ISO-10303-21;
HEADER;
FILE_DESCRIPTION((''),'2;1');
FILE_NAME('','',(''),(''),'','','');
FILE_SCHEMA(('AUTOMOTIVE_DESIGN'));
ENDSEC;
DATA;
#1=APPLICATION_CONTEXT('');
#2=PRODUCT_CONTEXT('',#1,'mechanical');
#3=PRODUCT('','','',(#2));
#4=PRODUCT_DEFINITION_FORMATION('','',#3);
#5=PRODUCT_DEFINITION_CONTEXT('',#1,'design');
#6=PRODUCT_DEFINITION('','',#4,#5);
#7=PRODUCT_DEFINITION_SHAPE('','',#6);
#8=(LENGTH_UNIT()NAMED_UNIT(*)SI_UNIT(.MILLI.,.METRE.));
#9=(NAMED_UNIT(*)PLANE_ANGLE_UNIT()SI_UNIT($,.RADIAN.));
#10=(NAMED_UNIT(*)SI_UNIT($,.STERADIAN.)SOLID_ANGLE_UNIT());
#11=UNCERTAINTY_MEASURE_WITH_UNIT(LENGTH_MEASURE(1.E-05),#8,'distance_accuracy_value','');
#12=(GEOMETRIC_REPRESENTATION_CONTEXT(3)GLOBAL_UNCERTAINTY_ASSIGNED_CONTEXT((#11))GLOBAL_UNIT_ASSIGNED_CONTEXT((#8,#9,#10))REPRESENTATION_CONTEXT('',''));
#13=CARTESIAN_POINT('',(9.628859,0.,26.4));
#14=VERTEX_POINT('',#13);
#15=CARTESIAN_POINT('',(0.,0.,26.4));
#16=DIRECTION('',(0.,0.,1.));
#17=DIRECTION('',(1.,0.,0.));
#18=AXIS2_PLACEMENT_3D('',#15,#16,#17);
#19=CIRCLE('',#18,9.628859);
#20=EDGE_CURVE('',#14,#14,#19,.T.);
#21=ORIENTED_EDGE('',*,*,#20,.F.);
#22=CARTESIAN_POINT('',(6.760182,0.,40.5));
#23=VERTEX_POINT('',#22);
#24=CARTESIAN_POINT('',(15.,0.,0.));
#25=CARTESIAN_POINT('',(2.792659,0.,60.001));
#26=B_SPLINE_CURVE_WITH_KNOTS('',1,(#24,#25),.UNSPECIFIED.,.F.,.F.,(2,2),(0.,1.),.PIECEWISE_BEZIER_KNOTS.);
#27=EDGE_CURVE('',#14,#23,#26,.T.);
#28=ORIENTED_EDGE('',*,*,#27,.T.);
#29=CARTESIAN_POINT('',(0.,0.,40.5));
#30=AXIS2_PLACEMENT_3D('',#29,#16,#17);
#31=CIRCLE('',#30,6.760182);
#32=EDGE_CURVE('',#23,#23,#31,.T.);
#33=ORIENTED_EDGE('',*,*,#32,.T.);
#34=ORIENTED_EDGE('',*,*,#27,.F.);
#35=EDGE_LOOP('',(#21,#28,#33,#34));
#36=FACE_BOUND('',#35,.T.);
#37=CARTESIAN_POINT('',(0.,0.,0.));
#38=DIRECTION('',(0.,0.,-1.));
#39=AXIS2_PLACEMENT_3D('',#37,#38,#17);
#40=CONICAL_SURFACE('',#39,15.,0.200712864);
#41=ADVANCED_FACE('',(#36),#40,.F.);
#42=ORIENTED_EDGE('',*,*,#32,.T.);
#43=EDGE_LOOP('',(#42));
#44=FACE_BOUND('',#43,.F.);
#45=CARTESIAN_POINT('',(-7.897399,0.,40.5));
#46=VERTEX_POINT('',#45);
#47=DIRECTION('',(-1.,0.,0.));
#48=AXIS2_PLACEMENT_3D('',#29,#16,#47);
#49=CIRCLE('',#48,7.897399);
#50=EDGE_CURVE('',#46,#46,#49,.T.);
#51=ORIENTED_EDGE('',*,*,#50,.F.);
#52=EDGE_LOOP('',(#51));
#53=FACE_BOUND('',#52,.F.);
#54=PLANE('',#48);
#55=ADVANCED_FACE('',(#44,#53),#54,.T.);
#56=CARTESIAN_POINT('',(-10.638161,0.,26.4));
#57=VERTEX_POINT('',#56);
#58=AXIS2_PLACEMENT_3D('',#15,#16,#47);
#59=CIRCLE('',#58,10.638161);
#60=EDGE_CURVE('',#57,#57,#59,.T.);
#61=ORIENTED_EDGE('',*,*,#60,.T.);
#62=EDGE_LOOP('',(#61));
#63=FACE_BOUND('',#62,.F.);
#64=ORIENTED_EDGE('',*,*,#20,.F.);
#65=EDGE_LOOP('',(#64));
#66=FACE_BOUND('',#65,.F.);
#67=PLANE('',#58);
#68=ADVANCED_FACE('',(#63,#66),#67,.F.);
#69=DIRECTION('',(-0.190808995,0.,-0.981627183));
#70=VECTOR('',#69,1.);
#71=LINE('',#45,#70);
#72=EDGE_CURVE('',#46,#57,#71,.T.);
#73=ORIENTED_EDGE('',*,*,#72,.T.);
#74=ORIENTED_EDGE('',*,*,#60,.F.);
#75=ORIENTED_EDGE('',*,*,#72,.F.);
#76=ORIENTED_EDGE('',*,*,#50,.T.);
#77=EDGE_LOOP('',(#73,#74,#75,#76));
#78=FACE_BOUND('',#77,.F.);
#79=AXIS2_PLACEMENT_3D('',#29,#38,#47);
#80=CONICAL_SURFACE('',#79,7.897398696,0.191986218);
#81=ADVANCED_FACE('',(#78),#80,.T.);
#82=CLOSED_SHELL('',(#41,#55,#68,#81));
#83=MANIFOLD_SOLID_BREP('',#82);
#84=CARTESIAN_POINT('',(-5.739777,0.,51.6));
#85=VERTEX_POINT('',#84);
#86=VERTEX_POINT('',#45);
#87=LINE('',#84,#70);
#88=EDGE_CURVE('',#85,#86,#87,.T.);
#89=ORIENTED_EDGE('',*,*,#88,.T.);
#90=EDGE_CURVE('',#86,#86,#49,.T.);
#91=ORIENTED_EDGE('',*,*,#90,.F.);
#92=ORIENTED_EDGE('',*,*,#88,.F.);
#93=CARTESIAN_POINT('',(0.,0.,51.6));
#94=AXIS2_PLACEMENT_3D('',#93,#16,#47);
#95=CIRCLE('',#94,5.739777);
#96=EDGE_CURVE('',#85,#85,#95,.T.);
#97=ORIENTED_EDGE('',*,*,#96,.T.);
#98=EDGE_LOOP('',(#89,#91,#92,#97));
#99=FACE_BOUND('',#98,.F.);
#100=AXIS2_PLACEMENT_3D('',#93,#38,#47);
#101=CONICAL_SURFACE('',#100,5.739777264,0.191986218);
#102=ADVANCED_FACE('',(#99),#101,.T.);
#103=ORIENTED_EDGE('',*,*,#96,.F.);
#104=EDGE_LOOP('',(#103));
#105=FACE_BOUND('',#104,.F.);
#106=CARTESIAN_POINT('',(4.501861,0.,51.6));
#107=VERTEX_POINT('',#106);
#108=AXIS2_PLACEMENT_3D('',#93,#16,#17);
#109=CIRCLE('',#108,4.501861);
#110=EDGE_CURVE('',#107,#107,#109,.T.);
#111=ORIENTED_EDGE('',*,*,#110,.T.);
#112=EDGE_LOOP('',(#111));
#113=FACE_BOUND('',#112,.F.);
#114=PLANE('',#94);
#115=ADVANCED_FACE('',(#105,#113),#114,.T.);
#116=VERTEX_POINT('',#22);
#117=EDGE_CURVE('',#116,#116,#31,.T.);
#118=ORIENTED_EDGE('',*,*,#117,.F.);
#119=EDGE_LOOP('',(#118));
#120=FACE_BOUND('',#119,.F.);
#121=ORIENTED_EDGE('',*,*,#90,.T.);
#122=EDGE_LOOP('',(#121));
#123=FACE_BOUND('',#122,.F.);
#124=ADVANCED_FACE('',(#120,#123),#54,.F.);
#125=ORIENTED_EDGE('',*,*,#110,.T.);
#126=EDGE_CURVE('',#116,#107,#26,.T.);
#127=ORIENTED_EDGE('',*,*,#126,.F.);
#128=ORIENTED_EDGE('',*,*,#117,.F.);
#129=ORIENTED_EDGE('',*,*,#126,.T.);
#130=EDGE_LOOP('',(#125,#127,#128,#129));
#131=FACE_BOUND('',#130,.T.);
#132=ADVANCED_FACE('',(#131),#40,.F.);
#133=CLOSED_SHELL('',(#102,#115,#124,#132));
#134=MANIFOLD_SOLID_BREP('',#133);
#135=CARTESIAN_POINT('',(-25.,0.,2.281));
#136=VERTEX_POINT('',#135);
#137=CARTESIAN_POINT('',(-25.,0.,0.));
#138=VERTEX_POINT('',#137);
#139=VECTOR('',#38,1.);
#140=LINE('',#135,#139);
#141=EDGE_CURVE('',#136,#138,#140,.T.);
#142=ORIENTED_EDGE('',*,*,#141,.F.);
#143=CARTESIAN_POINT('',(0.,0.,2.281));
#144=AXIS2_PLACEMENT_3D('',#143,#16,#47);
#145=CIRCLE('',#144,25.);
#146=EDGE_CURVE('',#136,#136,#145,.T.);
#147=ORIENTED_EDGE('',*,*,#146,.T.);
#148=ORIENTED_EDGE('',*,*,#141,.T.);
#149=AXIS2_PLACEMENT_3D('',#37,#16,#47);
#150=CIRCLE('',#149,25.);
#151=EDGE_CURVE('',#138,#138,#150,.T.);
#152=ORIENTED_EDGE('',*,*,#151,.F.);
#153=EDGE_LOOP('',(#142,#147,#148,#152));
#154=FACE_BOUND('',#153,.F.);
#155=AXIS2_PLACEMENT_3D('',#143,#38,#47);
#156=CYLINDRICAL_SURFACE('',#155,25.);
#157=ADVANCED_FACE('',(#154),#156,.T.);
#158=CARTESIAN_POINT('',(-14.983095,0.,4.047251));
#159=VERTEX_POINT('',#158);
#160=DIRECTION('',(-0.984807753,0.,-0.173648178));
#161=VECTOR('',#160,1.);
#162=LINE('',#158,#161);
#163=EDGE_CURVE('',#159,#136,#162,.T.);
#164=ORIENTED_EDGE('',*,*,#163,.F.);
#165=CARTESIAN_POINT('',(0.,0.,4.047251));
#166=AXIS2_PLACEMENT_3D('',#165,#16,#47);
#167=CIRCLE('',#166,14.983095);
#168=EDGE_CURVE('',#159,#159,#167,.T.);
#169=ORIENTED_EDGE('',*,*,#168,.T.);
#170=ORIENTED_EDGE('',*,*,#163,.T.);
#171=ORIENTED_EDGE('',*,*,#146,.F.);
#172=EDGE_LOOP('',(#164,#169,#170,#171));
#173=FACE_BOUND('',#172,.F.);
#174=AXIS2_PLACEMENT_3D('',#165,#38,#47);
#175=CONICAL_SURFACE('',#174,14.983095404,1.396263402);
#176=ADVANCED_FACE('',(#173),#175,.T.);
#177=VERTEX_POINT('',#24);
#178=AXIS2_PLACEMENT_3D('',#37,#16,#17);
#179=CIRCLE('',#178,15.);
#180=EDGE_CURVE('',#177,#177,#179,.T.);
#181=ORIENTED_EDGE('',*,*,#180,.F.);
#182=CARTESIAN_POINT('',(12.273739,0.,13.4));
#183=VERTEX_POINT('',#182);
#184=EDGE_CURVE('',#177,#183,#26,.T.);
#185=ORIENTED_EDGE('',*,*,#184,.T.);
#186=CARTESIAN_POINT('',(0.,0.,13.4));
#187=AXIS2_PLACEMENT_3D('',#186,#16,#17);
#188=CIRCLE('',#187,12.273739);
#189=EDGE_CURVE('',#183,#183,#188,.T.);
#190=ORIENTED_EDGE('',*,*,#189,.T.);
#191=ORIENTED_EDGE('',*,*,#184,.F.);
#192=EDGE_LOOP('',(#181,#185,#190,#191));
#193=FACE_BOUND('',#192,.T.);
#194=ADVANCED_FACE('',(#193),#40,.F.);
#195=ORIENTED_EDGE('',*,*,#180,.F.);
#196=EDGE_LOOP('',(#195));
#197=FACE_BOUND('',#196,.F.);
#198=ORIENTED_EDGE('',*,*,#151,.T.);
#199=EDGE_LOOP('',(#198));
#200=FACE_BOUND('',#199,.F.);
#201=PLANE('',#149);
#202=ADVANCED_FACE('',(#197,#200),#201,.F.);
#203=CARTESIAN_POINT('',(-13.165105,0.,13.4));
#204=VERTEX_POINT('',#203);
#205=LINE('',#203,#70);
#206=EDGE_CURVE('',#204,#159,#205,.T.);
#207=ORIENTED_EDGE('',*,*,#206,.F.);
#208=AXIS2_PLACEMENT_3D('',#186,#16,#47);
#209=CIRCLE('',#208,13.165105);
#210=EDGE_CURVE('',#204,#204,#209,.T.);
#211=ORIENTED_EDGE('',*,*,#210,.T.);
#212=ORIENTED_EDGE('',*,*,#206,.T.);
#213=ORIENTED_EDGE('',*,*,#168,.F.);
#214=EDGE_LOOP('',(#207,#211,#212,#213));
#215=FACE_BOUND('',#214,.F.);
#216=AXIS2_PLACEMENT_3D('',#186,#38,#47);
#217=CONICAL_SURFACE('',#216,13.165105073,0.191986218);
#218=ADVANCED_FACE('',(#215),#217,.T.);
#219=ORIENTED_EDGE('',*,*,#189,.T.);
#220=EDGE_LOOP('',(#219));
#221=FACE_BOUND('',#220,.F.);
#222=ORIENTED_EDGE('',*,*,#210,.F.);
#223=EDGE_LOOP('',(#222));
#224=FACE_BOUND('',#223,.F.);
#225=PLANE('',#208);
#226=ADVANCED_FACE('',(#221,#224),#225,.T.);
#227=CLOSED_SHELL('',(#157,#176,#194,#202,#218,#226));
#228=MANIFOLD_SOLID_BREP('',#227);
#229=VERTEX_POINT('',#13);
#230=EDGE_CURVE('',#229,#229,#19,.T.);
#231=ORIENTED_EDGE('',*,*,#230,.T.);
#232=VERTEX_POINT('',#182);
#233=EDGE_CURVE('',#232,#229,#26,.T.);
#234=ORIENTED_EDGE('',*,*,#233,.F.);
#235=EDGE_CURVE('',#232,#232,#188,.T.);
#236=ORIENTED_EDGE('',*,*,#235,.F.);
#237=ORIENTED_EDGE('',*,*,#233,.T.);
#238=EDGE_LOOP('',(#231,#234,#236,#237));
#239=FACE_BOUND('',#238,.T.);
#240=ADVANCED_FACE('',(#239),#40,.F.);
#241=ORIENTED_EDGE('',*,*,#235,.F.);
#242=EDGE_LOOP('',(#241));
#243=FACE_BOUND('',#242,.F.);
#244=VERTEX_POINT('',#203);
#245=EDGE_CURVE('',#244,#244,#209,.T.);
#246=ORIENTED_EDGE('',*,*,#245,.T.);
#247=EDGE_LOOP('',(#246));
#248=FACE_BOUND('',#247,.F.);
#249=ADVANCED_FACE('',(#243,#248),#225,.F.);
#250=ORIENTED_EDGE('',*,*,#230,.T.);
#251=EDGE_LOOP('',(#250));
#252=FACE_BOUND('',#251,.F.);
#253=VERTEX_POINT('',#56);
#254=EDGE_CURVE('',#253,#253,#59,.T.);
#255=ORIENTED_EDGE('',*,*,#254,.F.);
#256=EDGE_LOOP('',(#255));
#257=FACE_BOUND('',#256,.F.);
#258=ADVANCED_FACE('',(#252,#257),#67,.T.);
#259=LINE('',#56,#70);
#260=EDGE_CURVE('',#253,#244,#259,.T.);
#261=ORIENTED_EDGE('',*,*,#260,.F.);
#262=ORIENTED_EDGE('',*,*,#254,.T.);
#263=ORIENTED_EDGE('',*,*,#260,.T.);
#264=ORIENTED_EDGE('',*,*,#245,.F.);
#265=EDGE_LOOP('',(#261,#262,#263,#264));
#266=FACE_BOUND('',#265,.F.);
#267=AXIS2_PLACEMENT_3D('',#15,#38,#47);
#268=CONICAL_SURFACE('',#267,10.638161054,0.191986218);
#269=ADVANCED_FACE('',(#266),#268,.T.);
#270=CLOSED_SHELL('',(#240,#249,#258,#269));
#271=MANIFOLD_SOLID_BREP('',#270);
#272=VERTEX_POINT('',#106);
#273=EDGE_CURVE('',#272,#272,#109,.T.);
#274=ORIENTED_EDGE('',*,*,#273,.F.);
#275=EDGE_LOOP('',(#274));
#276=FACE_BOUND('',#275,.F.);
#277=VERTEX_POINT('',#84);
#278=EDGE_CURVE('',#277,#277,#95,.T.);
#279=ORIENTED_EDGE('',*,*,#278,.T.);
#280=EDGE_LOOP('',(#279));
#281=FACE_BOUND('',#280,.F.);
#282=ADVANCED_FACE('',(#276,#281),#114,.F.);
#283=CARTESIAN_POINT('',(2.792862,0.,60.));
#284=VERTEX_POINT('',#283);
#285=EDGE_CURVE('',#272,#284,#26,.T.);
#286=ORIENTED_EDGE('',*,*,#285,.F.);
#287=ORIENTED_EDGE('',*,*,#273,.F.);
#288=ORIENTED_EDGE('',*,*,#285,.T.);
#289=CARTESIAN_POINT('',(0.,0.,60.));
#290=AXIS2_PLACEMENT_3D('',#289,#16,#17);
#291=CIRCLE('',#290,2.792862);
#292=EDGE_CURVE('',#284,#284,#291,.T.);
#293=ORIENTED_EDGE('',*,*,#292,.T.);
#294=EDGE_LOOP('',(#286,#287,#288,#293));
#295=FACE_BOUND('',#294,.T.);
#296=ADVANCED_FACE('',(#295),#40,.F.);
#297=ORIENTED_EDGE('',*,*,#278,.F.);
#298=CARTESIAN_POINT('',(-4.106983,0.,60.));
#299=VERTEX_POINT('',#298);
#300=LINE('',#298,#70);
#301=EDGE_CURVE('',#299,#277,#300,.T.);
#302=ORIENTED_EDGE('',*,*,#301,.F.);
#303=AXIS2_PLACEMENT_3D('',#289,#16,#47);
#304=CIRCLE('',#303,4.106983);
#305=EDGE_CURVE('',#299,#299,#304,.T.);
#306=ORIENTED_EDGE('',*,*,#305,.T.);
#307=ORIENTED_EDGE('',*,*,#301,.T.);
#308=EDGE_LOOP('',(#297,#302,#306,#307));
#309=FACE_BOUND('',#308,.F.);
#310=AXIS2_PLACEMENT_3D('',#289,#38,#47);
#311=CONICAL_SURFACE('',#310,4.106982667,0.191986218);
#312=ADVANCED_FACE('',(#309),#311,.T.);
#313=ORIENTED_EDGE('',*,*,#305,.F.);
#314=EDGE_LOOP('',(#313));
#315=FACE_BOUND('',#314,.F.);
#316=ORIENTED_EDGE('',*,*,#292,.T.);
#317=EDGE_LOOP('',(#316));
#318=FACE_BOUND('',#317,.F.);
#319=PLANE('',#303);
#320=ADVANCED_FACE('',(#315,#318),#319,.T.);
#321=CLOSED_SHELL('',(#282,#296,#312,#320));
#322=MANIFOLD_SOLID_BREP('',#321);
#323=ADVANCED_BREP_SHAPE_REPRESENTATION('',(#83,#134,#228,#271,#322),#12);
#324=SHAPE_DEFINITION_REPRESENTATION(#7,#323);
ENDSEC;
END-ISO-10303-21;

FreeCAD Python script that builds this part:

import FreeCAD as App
import Part
import Sketcher
from FreeCAD import Vector
Q = App.Units.Quantity

doc = App.newDocument("Part")
body = doc.addObject("PartDesign::Body", "Body")

sketch1 = body.newObject("Sketcher::SketchObject", "Sketch")
sketch1.AttachmentSupport = (doc.getObject("XZ_Plane"), [""])
sketch1.MapMode = "FlatFace"
sketch1.addGeometry(Part.LineSegment(Vector(-7.897399, 40.5, 0), Vector(0, 40.5, 0)), False)
sketch1.addGeometry(Part.LineSegment(Vector(0, 40.5, 0), Vector(0, 51.6, 0)), False)
sketch1.addGeometry(Part.LineSegment(Vector(0, 51.6, 0), Vector(-5.739777, 51.6, 0)), False)
sketch1.addGeometry(Part.LineSegment(Vector(-5.739777, 51.6, 0), Vector(-7.897399, 40.5, 0)), False)
sketch1.addConstraint(Sketcher.Constraint("Coincident", 0, 2, 1, 1))
sketch1.addConstraint(Sketcher.Constraint("Coincident", 1, 2, 2, 1))
sketch1.addConstraint(Sketcher.Constraint("Coincident", 2, 2, 3, 1))
sketch1.addConstraint(Sketcher.Constraint("Coincident", 3, 2, 0, 1))
sketch1.addConstraint(Sketcher.Constraint("Horizontal", 0))
sketch1.addConstraint(Sketcher.Constraint("Vertical", 1))
sketch1.addConstraint(Sketcher.Constraint("Horizontal", 2))
sketch1.addConstraint(Sketcher.Constraint("PointOnObject", 0, 2, -2))
sketch1.addConstraint(Sketcher.Constraint("Angle", 3, Q("-101 deg")))
sketch1.addConstraint(Sketcher.Constraint("DistanceY", 1, 1, 1, 2, Q("11.1 mm")))
sketch1.addConstraint(Sketcher.Constraint("DistanceY", -1, 1, 0, 2, Q("40.5 mm")))
sketch1.addConstraint(Sketcher.Constraint("DistanceX", 0, 1, 0, 2, Q("7.897399 mm")))
revolution = body.newObject("PartDesign::Revolution", "Revolution")
revolution.Profile = sketch1
revolution.ReferenceAxis = (sketch1, ["V_Axis"])
revolution.Angle = 360
body2 = doc.addObject("PartDesign::Body", "Body001")

sketch2 = body2.newObject("Sketcher::SketchObject", "Sketch001")
sketch2.AttachmentSupport = (doc.getObject("XZ_Plane001"), [""])
sketch2.MapMode = "FlatFace"
sketch2.addGeometry(Part.LineSegment(Vector(-5.739777, 51.6, 0), Vector(0, 51.6, 0)), False)
sketch2.addGeometry(Part.LineSegment(Vector(0, 51.6, 0), Vector(0, 60, 0)), False)
sketch2.addGeometry(Part.LineSegment(Vector(0, 60, 0), Vector(-4.106983, 60, 0)), False)
sketch2.addGeometry(Part.LineSegment(Vector(-4.106983, 60, 0), Vector(-5.739777, 51.6, 0)), False)
sketch2.addConstraint(Sketcher.Constraint("Coincident", 0, 2, 1, 1))
sketch2.addConstraint(Sketcher.Constraint("Coincident", 1, 2, 2, 1))
sketch2.addConstraint(Sketcher.Constraint("Coincident", 2, 2, 3, 1))
sketch2.addConstraint(Sketcher.Constraint("Coincident", 3, 2, 0, 1))
sketch2.addConstraint(Sketcher.Constraint("Horizontal", 0))
sketch2.addConstraint(Sketcher.Constraint("Vertical", 1))
sketch2.addConstraint(Sketcher.Constraint("Horizontal", 2))
sketch2.addConstraint(Sketcher.Constraint("PointOnObject", 0, 2, -2))
sketch2.addConstraint(Sketcher.Constraint("Angle", 3, Q("-101 deg")))
sketch2.addConstraint(Sketcher.Constraint("DistanceY", 1, 1, 1, 2, Q("8.4 mm")))
sketch2.addConstraint(Sketcher.Constraint("DistanceY", -1, 1, 1, 2, Q("60 mm")))
sketch2.addConstraint(Sketcher.Constraint("DistanceX", 0, 1, 0, 2, Q("5.739777 mm")))
revolution2 = body2.newObject("PartDesign::Revolution", "Revolution001")
revolution2.Profile = sketch2
revolution2.ReferenceAxis = (sketch2, ["V_Axis"])
revolution2.Angle = 360
body3 = doc.addObject("PartDesign::Body", "Body002")

sketch3 = body3.newObject("Sketcher::SketchObject", "Sketch002")
sketch3.AttachmentSupport = (doc.getObject("XZ_Plane002"), [""])
sketch3.MapMode = "FlatFace"
sketch3.addGeometry(Part.LineSegment(Vector(-10.638161, 26.4, 0), Vector(0, 26.4, 0)), False)
sketch3.addGeometry(Part.LineSegment(Vector(0, 26.4, 0), Vector(0, 40.5, 0)), False)
sketch3.addGeometry(Part.LineSegment(Vector(0, 40.5, 0), Vector(-7.897399, 40.5, 0)), False)
sketch3.addGeometry(Part.LineSegment(Vector(-7.897399, 40.5, 0), Vector(-10.638161, 26.4, 0)), False)
sketch3.addConstraint(Sketcher.Constraint("Coincident", 0, 2, 1, 1))
sketch3.addConstraint(Sketcher.Constraint("Coincident", 1, 2, 2, 1))
sketch3.addConstraint(Sketcher.Constraint("Coincident", 2, 2, 3, 1))
sketch3.addConstraint(Sketcher.Constraint("Coincident", 3, 2, 0, 1))
sketch3.addConstraint(Sketcher.Constraint("Horizontal", 0))
sketch3.addConstraint(Sketcher.Constraint("Vertical", 1))
sketch3.addConstraint(Sketcher.Constraint("Horizontal", 2))
sketch3.addConstraint(Sketcher.Constraint("PointOnObject", 0, 2, -2))
sketch3.addConstraint(Sketcher.Constraint("Angle", 3, Q("-101 deg")))
sketch3.addConstraint(Sketcher.Constraint("DistanceY", 1, 1, 1, 2, Q("14.1 mm")))
sketch3.addConstraint(Sketcher.Constraint("DistanceY", -1, 1, 0, 2, Q("26.4 mm")))
sketch3.addConstraint(Sketcher.Constraint("DistanceX", 2, 2, 2, 1, Q("7.897399 mm")))
revolution3 = body3.newObject("PartDesign::Revolution", "Revolution002")
revolution3.Profile = sketch3
revolution3.ReferenceAxis = (sketch3, ["V_Axis"])
revolution3.Angle = 360
body4 = doc.addObject("PartDesign::Body", "Body003")

sketch4 = body4.newObject("Sketcher::SketchObject", "Sketch003")
sketch4.AttachmentSupport = (doc.getObject("XZ_Plane003"), [""])
sketch4.MapMode = "FlatFace"
sketch4.addGeometry(Part.LineSegment(Vector(-13.165105, 13.4, 0), Vector(0, 13.4, 0)), False)
sketch4.addGeometry(Part.LineSegment(Vector(0, 13.4, 0), Vector(0, 26.4, 0)), False)
sketch4.addGeometry(Part.LineSegment(Vector(0, 26.4, 0), Vector(-10.638161, 26.4, 0)), False)
sketch4.addGeometry(Part.LineSegment(Vector(-10.638161, 26.4, 0), Vector(-13.165105, 13.4, 0)), False)
sketch4.addConstraint(Sketcher.Constraint("Coincident", 0, 2, 1, 1))
sketch4.addConstraint(Sketcher.Constraint("Coincident", 1, 2, 2, 1))
sketch4.addConstraint(Sketcher.Constraint("Coincident", 2, 2, 3, 1))
sketch4.addConstraint(Sketcher.Constraint("Coincident", 3, 2, 0, 1))
sketch4.addConstraint(Sketcher.Constraint("Horizontal", 0))
sketch4.addConstraint(Sketcher.Constraint("Vertical", 1))
sketch4.addConstraint(Sketcher.Constraint("Horizontal", 2))
sketch4.addConstraint(Sketcher.Constraint("PointOnObject", 0, 2, -2))
sketch4.addConstraint(Sketcher.Constraint("DistanceY", 1, 1, 1, 2, Q("13 mm")))
sketch4.addConstraint(Sketcher.Constraint("Angle", 3, Q("-101 deg")))
sketch4.addConstraint(Sketcher.Constraint("DistanceY", -1, 1, 0, 2, Q("13.4 mm")))
sketch4.addConstraint(Sketcher.Constraint("DistanceX", 2, 2, 2, 1, Q("10.638161 mm")))
revolution4 = body4.newObject("PartDesign::Revolution", "Revolution003")
revolution4.Profile = sketch4
revolution4.ReferenceAxis = (sketch4, ["V_Axis"])
revolution4.Angle = 360
body5 = doc.addObject("PartDesign::Body", "Body004")

sketch5 = body5.newObject("Sketcher::SketchObject", "Sketch004")
sketch5.AttachmentSupport = (doc.getObject("XZ_Plane004"), [""])
sketch5.MapMode = "FlatFace"
sketch5.addGeometry(Part.LineSegment(Vector(-25, 0, 0), Vector(0, 0, 0)), False)
sketch5.addGeometry(Part.LineSegment(Vector(0, 0, 0), Vector(0, 13.4, 0)), False)
sketch5.addGeometry(Part.LineSegment(Vector(0, 13.4, 0), Vector(-13.165105, 13.4, 0)), False)
sketch5.addGeometry(Part.LineSegment(Vector(-13.165105, 13.4, 0), Vector(-14.983095, 4.047251, 0)), False)
sketch5.addGeometry(Part.LineSegment(Vector(-14.983095, 4.047251, 0), Vector(-25, 2.281, 0)), False)
sketch5.addGeometry(Part.LineSegment(Vector(-25, 2.281, 0), Vector(-25, 0, 0)), False)
sketch5.addConstraint(Sketcher.Constraint("Coincident", 0, 2, 1, 1))
sketch5.addConstraint(Sketcher.Constraint("Coincident", 1, 2, 2, 1))
sketch5.addConstraint(Sketcher.Constraint("Coincident", 2, 2, 3, 1))
sketch5.addConstraint(Sketcher.Constraint("Coincident", 3, 2, 4, 1))
sketch5.addConstraint(Sketcher.Constraint("Coincident", 4, 2, 5, 1))
sketch5.addConstraint(Sketcher.Constraint("Coincident", 5, 2, 0, 1))
sketch5.addConstraint(Sketcher.Constraint("Horizontal", 0))
sketch5.addConstraint(Sketcher.Constraint("Vertical", 1))
sketch5.addConstraint(Sketcher.Constraint("Horizontal", 2))
sketch5.addConstraint(Sketcher.Constraint("Vertical", 5))
sketch5.addConstraint(Sketcher.Constraint("Coincident", 0, 2, -1, 1))
sketch5.addConstraint(Sketcher.Constraint("DistanceX", 0, 1, 0, 2, Q("25 mm")))
sketch5.addConstraint(Sketcher.Constraint("Angle", 3, Q("-101 deg")))
sketch5.addConstraint(Sketcher.Constraint("Angle", 4, Q("-170 deg")))
sketch5.addConstraint(Sketcher.Constraint("DistanceY", 1, 1, 1, 2, Q("13.4 mm")))
sketch5.addConstraint(Sketcher.Constraint("DistanceY", 5, 2, 5, 1, Q("2.281 mm")))
sketch5.addConstraint(Sketcher.Constraint("Distance", 4, Q("10.171431 mm")))
revolution5 = body5.newObject("PartDesign::Revolution", "Revolution004")
revolution5.Profile = sketch5
revolution5.ReferenceAxis = (sketch5, ["V_Axis"])
revolution5.Angle = 360
body6 = doc.addObject("PartDesign::Body", "Body005")

sketch6 = body6.newObject("Sketcher::SketchObject", "Sketch005")
sketch6.AttachmentSupport = (doc.getObject("XY_Plane005"), [""])
sketch6.MapMode = "FlatFace"
sketch6.addGeometry(Part.Circle(Vector(0, 0, 0), Vector(0, 0, 1), 15), False)
sketch6.addConstraint(Sketcher.Constraint("Coincident", 0, 3, -1, 1))
sketch6.addConstraint(Sketcher.Constraint("Diameter", 0, Q("30 mm")))
pad1 = body6.newObject("PartDesign::Pad", "Pad")
pad1.Profile = sketch6
pad1.Length = 60.001
pad1.TaperAngle = -11.5
doc.recompute()

body7 = doc.addObject("PartDesign::Body", "Body006")
body7.BaseFeature = body6
boolean = body.newObject("PartDesign::Boolean", "Boolean")
boolean.Type = "Cut"
boolean.addObjects([body7])
doc.recompute()

body8 = doc.addObject("PartDesign::Body", "Body007")
body8.BaseFeature = body6
boolean2 = body2.newObject("PartDesign::Boolean", "Boolean001")
boolean2.Type = "Cut"
boolean2.addObjects([body8])
doc.recompute()

body9 = doc.addObject("PartDesign::Body", "Body008")
body9.BaseFeature = body6
boolean3 = body3.newObject("PartDesign::Boolean", "Boolean002")
boolean3.Type = "Cut"
boolean3.addObjects([body9])
doc.recompute()

body10 = doc.addObject("PartDesign::Body", "Body009")
body10.BaseFeature = body6
boolean4 = body4.newObject("PartDesign::Boolean", "Boolean003")
boolean4.Type = "Cut"
boolean4.addObjects([body10])
doc.recompute()

boolean5 = body5.newObject("PartDesign::Boolean", "Boolean004")
boolean5.Type = "Cut"
boolean5.addObjects([body6])

doc.recompute()
